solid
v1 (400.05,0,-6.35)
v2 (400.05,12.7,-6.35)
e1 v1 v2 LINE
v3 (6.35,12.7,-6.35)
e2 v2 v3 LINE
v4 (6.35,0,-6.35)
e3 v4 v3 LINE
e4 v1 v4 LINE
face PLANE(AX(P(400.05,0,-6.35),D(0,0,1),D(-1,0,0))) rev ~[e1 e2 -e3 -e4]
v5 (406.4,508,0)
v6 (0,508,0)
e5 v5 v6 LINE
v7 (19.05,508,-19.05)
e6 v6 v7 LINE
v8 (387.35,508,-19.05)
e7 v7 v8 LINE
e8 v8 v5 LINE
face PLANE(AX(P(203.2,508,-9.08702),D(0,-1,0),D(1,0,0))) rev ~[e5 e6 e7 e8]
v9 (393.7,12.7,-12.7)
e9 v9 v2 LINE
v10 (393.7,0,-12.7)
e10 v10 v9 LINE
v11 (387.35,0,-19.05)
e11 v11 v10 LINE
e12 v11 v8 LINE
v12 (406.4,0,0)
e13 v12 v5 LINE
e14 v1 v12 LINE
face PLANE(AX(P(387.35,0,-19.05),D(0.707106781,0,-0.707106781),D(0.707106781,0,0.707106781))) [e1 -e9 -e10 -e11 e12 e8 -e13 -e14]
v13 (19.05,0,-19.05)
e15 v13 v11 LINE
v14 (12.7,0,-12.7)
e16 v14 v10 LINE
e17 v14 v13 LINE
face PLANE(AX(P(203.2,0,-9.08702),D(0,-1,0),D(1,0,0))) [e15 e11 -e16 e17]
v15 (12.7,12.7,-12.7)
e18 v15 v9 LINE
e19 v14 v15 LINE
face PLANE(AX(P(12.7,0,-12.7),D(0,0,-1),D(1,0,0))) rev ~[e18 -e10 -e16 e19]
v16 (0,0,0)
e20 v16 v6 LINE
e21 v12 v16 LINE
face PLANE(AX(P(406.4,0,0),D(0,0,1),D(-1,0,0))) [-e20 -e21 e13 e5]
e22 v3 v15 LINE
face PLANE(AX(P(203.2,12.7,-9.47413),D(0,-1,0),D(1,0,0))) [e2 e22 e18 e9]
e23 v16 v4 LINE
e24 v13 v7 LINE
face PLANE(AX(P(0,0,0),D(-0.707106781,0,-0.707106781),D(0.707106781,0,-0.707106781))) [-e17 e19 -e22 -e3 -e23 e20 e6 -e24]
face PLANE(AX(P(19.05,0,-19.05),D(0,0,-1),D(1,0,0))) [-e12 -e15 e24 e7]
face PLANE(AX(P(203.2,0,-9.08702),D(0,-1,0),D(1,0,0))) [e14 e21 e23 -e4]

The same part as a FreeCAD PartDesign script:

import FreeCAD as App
import Part
import Sketcher
Q = App.Units.Quantity

doc = App.newDocument("Part")
body = doc.addObject("PartDesign::Body", "Body")

# Sketch on XZ plane
sketch1 = doc.addObject("Sketcher::SketchObject", "Sketch")
body.addObject(sketch1)
sketch1.AttachmentSupport = (doc.XZ_Plane, [""])
sketch1.MapMode = "FlatFace"
sketch1.addGeometry(Part.LineSegment(App.Vector(406.4, 0, 0), App.Vector(0, 0, 0)), False)
sketch1.addGeometry(Part.LineSegment(App.Vector(0, 0, 0), App.Vector(19.05, -19.05, 0)), False)
sketch1.addGeometry(Part.LineSegment(App.Vector(19.05, -19.05, 0), App.Vector(387.35, -19.05, 0)), False)
sketch1.addGeometry(Part.LineSegment(App.Vector(387.35, -19.05, 0), App.Vector(406.4, 0, 0)), False)
sketch1.addConstraint(Sketcher.Constraint("Coincident", 0, 2, 1, 1))
sketch1.addConstraint(Sketcher.Constraint("Coincident", 1, 2, 2, 1))
sketch1.addConstraint(Sketcher.Constraint("Coincident", 2, 2, 3, 1))
sketch1.addConstraint(Sketcher.Constraint("Coincident", 3, 2, 0, 1))
sketch1.addConstraint(Sketcher.Constraint("Horizontal", 0))
sketch1.addConstraint(Sketcher.Constraint("Horizontal", 2))
sketch1.addConstraint(Sketcher.Constraint("Coincident", 0, 2, -1, 1))
sketch1.addConstraint(Sketcher.Constraint("Perpendicular", 1, 3))
sketch1.addConstraint(Sketcher.Constraint("Equal", 1, 3))
sketch1.addConstraint(Sketcher.Constraint("DistanceX", 0, 2, 0, 1, Q("16 in")))
sketch1.addConstraint(Sketcher.Constraint("DistanceX", 2, 1, 2, 2, Q("14.5 in")))
pad1 = doc.addObject("PartDesign::Pad", "Pad")
body.addObject(pad1)
pad1.Profile = sketch1
pad1.Length = Q("20 in")
pad1.Reversed = True

# Sketch on XZ plane
sketch2 = doc.addObject("Sketcher::SketchObject", "Sketch001")
body.addObject(sketch2)
sketch2.AttachmentSupport = (doc.XZ_Plane, [""])
sketch2.MapMode = "FlatFace"
sketch2.addGeometry(Part.LineSegment(App.Vector(400.05, -6.35, 0), App.Vector(6.35, -6.35, 0)), False)
sketch2.addGeometry(Part.LineSegment(App.Vector(6.35, -6.35, 0), App.Vector(12.7, -12.7, 0)), False)
sketch2.addGeometry(Part.LineSegment(App.Vector(12.7, -12.7, 0), App.Vector(393.7, -12.7, 0)), False)
sketch2.addGeometry(Part.LineSegment(App.Vector(393.7, -12.7, 0), App.Vector(400.05, -6.35, 0)), False)
sketch2.addConstraint(Sketcher.Constraint("Coincident", 0, 2, 1, 1))
sketch2.addConstraint(Sketcher.Constraint("Coincident", 1, 2, 2, 1))
sketch2.addConstraint(Sketcher.Constraint("Coincident", 2, 2, 3, 1))
sketch2.addConstraint(Sketcher.Constraint("Coincident", 3, 2, 0, 1))
sketch2.addConstraint(Sketcher.Constraint("Horizontal", 0))
sketch2.addConstraint(Sketcher.Constraint("Horizontal", 2))
sketch2.addConstraint(Sketcher.Constraint("Perpendicular", 1, 3))
sketch2.addConstraint(Sketcher.Constraint("Equal", 1, 3))
sketch2.addConstraint(Sketcher.Constraint("DistanceX", 2, 1, 2, 2, Q("15 in")))
sketch2.addConstraint(Sketcher.Constraint("DistanceX", 0, 2, 0, 1, Q("15.5 in")))
sketch2.addConstraint(Sketcher.Constraint("DistanceX", -1, 1, 1, 2, Q("0.5 in")))
sketch2.addConstraint(Sketcher.Constraint("DistanceY", 1, 2, -1, 1, Q("0.5 in")))
pocket1 = doc.addObject("PartDesign::Pocket", "Pocket")
body.addObject(pocket1)
pocket1.Profile = sketch2
pocket1.Length = Q("0.5 in")

doc.recompute()
